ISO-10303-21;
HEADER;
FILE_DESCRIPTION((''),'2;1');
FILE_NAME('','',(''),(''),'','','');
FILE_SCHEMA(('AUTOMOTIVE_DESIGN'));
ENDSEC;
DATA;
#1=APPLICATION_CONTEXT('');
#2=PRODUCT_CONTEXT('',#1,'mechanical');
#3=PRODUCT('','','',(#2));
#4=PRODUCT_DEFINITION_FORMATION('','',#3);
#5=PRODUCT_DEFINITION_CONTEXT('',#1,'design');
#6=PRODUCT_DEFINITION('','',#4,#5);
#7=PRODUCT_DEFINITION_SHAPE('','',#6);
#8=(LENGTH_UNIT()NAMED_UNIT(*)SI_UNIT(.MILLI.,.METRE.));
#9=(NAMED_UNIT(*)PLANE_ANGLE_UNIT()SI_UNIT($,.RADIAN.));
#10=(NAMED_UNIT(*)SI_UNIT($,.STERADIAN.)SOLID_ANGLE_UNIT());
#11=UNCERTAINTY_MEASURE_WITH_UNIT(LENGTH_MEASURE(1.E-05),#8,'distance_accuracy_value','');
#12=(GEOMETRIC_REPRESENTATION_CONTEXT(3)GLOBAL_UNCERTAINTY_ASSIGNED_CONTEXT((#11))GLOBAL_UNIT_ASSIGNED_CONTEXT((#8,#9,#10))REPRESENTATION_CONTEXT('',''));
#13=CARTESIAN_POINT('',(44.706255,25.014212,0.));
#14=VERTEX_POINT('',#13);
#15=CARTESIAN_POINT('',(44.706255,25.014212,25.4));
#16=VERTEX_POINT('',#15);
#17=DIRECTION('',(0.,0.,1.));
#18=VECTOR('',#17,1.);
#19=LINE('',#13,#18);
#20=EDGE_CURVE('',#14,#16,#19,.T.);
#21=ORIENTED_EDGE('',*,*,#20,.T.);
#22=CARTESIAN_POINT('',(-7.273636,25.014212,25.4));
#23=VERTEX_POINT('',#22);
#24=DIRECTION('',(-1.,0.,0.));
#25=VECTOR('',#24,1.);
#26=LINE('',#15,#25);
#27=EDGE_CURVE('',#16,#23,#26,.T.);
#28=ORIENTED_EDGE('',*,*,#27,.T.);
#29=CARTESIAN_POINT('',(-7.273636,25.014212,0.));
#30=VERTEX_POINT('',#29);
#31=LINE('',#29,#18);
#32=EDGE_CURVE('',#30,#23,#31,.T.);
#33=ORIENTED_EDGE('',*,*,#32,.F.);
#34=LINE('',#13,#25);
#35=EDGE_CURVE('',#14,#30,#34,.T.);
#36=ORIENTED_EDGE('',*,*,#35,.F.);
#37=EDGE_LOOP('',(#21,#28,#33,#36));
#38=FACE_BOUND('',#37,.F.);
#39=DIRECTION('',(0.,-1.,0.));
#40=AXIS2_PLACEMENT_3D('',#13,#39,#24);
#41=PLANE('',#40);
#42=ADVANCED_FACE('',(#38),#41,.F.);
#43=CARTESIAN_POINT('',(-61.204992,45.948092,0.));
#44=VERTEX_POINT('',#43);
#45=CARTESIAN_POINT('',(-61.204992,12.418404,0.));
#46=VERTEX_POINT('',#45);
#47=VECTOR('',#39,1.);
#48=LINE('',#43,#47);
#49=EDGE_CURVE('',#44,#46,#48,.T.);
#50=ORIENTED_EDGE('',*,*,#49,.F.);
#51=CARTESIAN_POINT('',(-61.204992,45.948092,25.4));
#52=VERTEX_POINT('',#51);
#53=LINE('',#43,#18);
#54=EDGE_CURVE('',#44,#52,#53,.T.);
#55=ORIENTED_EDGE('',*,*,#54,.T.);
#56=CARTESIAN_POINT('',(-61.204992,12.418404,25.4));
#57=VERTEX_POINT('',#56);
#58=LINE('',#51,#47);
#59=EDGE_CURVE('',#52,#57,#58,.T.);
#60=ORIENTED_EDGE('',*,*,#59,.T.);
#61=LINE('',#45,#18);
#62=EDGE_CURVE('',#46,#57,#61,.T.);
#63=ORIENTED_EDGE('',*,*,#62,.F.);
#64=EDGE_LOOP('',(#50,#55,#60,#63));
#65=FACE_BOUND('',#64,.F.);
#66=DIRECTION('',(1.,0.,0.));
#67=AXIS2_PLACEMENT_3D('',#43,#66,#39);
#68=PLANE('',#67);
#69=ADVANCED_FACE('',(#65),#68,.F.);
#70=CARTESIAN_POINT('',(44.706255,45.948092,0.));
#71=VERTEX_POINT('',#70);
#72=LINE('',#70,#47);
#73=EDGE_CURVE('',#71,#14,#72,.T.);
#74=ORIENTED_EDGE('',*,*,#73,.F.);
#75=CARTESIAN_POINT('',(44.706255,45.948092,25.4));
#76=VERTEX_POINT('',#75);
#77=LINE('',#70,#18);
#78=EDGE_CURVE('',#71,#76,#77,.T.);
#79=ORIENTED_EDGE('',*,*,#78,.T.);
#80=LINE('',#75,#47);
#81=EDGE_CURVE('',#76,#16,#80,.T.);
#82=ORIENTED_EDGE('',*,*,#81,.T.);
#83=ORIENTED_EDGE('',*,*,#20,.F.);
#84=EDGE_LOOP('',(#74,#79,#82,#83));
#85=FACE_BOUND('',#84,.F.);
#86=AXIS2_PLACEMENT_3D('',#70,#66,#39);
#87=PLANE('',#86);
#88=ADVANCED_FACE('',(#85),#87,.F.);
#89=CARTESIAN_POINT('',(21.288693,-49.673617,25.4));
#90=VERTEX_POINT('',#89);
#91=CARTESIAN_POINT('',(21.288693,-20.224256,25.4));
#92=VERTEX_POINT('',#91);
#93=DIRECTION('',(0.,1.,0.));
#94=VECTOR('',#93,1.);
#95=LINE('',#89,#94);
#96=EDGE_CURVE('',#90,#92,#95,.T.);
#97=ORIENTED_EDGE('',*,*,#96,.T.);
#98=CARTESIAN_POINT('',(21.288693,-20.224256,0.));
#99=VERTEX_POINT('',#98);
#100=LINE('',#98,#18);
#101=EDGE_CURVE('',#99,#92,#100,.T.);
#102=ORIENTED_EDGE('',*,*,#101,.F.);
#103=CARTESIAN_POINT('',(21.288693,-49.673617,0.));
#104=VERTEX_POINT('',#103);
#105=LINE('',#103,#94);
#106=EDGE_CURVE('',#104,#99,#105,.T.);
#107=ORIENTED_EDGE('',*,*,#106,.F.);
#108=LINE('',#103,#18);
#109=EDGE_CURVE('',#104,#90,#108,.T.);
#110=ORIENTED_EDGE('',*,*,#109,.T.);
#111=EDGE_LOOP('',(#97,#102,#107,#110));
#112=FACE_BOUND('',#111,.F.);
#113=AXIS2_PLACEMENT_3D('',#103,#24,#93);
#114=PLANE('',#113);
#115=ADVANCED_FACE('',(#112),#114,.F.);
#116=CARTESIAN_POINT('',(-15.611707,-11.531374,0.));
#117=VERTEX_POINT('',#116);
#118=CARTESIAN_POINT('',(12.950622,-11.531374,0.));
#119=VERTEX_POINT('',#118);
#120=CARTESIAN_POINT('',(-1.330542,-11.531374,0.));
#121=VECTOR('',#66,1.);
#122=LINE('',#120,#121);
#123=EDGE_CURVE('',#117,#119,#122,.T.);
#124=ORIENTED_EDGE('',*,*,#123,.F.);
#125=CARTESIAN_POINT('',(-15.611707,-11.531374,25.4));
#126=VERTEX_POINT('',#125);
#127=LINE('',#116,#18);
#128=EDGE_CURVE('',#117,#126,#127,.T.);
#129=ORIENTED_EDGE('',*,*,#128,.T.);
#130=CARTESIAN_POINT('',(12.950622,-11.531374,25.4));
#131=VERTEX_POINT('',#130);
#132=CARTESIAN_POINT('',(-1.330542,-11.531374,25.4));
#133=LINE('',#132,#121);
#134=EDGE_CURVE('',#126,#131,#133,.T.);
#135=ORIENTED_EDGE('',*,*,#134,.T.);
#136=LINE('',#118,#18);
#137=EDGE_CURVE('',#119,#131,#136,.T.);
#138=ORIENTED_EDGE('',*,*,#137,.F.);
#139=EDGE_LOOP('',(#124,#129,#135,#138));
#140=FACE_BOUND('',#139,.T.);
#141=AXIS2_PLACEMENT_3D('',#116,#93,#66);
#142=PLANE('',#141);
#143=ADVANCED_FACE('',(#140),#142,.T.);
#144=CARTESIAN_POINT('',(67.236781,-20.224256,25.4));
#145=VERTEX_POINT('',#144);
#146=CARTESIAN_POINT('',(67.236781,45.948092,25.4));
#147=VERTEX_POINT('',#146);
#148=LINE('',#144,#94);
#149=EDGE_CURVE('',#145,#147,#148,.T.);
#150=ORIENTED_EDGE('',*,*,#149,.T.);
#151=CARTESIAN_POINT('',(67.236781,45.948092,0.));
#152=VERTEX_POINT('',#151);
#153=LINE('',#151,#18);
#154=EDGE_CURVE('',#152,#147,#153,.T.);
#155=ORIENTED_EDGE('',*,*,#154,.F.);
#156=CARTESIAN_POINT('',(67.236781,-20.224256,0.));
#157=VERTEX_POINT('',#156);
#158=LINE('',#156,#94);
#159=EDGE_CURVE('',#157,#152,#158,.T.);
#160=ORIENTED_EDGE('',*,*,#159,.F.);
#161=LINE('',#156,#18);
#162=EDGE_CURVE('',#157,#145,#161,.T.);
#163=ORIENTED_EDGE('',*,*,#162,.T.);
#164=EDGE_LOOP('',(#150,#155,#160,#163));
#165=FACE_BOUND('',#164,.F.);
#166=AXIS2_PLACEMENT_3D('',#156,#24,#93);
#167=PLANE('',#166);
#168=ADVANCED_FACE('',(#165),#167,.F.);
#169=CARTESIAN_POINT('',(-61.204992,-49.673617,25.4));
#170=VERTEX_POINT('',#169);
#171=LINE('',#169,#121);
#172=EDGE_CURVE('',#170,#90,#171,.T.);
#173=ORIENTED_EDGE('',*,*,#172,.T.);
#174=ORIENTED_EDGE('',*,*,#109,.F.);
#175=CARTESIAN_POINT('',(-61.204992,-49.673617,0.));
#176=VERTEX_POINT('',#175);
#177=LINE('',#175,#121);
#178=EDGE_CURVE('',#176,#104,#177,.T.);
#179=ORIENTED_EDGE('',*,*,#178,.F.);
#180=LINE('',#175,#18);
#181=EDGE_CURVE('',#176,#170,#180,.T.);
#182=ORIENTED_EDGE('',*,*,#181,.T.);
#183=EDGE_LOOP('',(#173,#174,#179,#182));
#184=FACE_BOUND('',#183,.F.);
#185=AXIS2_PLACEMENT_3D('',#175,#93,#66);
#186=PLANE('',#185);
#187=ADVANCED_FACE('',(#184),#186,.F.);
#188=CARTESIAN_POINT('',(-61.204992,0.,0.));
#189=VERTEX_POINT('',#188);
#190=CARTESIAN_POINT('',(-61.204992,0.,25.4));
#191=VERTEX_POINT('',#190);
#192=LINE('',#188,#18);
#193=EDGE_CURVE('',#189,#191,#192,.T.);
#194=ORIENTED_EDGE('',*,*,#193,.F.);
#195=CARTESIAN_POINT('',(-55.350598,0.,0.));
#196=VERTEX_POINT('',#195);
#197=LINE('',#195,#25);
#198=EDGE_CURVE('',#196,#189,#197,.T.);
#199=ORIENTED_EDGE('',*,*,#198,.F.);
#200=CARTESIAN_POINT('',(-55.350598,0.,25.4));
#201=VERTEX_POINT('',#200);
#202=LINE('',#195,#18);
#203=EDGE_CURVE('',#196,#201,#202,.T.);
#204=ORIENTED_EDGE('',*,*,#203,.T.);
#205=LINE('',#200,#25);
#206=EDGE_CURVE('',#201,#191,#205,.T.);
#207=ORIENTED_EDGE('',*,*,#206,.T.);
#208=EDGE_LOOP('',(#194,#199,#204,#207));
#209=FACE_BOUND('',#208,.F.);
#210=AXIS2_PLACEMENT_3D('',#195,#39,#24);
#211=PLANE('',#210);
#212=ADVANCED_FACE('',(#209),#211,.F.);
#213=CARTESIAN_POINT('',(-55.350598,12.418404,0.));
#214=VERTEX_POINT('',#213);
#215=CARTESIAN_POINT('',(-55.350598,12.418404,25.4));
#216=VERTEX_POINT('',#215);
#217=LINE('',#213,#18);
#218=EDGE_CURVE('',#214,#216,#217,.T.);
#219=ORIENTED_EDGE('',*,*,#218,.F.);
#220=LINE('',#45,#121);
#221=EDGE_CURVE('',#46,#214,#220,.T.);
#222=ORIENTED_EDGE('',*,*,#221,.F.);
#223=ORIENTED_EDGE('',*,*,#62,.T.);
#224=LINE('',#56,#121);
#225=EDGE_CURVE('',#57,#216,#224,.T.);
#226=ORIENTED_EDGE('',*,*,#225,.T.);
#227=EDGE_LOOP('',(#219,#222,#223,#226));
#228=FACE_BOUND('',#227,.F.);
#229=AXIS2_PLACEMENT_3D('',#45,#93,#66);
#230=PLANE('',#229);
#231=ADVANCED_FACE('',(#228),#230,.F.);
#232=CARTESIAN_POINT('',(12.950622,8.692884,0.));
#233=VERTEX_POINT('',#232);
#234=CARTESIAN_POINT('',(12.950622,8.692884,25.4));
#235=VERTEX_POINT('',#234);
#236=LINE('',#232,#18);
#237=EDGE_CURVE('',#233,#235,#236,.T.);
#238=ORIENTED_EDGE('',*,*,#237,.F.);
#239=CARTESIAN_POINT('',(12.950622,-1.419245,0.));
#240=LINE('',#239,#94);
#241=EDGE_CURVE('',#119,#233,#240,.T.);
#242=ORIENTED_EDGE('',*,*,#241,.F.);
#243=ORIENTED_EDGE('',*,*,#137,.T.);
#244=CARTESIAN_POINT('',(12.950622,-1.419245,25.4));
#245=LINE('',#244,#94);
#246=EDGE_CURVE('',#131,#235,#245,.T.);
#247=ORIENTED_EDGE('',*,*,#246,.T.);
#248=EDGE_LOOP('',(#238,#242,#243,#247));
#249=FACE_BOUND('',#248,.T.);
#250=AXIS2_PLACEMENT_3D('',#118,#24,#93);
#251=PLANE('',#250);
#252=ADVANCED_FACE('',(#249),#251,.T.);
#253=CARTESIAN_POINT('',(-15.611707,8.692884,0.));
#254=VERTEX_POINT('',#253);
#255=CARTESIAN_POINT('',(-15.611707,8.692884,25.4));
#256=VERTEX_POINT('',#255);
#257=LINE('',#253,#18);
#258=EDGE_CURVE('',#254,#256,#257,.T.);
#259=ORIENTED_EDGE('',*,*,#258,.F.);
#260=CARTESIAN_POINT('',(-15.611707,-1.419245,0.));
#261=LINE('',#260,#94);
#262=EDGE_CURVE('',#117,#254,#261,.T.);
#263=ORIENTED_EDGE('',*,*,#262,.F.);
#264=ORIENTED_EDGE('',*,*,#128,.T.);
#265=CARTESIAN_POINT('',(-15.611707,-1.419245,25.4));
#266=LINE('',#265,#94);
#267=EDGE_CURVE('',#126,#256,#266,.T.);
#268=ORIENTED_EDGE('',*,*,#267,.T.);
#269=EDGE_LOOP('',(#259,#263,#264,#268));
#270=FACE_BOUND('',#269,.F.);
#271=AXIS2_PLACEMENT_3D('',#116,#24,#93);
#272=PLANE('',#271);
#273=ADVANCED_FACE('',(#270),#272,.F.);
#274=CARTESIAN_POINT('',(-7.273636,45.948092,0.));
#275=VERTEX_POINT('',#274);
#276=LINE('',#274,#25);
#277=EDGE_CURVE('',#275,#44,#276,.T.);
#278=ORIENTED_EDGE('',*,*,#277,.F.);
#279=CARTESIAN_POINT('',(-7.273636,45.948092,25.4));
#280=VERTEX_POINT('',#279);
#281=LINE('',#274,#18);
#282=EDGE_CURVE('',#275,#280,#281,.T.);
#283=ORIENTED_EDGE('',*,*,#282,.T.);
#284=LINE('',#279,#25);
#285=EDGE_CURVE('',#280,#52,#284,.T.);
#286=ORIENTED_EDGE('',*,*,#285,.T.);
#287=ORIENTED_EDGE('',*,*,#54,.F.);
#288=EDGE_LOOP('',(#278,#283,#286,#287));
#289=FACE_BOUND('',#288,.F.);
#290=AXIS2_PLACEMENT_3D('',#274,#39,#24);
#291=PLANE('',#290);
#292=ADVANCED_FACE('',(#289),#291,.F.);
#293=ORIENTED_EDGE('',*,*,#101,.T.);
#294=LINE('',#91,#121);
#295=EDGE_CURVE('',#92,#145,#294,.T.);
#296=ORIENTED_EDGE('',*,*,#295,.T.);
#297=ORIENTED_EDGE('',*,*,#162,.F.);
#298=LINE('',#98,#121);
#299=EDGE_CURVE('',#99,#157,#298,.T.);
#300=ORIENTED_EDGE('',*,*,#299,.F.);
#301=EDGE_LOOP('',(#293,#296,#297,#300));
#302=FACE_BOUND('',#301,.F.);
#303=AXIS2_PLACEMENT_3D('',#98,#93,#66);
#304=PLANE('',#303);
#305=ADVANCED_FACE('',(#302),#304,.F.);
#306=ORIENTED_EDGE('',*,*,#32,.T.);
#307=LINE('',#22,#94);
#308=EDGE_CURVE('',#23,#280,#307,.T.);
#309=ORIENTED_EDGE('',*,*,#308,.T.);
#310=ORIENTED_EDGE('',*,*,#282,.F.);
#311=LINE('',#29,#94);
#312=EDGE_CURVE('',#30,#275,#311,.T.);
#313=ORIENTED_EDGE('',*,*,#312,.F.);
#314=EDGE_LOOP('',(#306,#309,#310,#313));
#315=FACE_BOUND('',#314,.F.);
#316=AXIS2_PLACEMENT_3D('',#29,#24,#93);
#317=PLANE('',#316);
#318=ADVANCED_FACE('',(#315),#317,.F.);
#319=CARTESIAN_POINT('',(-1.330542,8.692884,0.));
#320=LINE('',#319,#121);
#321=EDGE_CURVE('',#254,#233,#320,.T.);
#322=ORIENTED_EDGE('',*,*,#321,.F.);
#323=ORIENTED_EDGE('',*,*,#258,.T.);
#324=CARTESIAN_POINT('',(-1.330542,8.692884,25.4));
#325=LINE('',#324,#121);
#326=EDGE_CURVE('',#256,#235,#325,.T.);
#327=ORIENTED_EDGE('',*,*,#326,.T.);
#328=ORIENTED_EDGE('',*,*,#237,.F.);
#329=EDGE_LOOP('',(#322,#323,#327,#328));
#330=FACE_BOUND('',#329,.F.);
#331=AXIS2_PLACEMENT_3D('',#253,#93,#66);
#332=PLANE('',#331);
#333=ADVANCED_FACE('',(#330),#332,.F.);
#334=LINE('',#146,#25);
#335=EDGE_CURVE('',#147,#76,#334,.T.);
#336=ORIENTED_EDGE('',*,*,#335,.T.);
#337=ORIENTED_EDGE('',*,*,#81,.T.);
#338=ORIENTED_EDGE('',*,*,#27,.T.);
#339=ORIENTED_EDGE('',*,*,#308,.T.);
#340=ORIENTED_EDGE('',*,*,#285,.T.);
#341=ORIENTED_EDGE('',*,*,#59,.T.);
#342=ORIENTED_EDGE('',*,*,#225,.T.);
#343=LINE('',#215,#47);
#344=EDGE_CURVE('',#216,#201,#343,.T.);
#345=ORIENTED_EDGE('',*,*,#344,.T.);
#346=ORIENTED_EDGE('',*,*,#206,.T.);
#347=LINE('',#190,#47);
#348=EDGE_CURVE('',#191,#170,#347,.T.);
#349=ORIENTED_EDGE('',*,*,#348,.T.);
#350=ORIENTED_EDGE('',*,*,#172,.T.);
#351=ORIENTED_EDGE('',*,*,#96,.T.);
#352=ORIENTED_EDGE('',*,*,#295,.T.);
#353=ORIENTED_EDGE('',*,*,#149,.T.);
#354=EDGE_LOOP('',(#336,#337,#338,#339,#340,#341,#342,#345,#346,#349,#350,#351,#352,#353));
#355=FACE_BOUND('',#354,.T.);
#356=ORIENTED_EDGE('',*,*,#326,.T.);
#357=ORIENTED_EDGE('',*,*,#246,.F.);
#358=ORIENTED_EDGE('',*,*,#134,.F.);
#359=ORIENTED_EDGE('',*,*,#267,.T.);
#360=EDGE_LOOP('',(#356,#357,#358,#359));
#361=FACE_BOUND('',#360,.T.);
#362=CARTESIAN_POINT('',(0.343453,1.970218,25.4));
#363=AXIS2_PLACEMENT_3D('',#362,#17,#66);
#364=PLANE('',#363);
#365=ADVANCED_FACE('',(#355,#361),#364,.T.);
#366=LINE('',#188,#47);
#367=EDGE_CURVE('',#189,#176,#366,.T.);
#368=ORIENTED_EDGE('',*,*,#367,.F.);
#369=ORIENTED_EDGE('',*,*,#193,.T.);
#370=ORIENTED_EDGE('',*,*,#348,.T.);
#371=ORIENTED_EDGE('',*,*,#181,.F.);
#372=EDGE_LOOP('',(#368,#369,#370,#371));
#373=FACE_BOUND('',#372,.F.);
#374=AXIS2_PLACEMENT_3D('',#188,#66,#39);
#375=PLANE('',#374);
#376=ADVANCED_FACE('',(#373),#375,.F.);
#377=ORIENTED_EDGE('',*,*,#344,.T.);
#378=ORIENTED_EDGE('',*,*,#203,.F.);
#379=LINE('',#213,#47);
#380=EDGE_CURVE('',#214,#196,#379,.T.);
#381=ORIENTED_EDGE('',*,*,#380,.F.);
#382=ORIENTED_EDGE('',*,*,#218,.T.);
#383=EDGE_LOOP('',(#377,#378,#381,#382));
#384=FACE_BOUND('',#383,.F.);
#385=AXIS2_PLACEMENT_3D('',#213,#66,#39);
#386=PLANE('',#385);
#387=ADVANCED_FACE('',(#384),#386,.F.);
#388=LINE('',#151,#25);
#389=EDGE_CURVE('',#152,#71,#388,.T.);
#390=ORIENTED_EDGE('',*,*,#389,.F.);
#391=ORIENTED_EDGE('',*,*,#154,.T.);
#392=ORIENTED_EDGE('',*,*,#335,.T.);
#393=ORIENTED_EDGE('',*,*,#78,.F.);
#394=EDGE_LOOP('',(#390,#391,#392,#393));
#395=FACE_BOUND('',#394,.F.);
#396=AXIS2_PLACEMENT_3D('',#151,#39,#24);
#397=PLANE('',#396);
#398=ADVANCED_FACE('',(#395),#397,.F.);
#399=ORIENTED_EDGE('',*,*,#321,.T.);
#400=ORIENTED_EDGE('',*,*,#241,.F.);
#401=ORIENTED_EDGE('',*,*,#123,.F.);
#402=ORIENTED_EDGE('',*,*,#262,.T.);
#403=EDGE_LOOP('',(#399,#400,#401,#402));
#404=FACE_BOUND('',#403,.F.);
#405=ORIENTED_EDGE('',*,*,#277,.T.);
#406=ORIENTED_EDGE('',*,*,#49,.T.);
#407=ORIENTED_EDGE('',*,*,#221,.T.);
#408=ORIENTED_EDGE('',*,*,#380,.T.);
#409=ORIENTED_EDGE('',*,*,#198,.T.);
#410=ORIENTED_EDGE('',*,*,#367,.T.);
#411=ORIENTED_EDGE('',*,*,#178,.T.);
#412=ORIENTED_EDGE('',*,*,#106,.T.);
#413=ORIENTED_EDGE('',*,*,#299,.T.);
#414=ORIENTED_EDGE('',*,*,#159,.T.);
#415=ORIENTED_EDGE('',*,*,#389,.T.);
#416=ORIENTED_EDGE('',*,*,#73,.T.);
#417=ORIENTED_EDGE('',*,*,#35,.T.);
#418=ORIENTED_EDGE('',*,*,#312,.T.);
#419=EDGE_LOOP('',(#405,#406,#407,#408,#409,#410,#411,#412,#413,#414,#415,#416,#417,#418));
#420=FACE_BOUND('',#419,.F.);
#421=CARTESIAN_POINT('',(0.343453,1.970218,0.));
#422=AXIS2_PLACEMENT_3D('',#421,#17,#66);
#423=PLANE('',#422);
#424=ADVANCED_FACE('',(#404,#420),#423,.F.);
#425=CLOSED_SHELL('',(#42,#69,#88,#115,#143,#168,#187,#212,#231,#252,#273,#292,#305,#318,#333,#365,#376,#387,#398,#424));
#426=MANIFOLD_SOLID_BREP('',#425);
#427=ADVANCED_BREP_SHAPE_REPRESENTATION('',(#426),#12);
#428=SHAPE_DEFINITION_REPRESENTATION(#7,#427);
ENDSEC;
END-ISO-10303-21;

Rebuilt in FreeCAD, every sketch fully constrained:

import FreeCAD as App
import Part
import Sketcher


def add_polygon(sketch, points):
    """Adds a closed chain of lines whose ends are joined by coincident constraints."""
    first, n = sketch.GeometryCount, len(points)
    for a, b in zip(points, points[1:] + points[:1]):
        sketch.addGeometry(Part.LineSegment(App.Vector(*a, 0), App.Vector(*b, 0)), False)
    for i in range(n):
        sketch.addConstraint(Sketcher.Constraint("Coincident", first + i, 2, first + (i + 1) % n, 1))

doc = App.newDocument("Part")
params = doc.addObject("Spreadsheet::Sheet", "Params")
for row, (alias, value) in enumerate([
    ("pad1_length", "1 in"),
], start=1):
    params.set(f"A{row}", alias)
    params.set(f"B{row}", "=" + value)
    params.setAlias(f"B{row}", alias)

body = doc.addObject("PartDesign::Body", "Body")

sketch1 = body.newObject("Sketcher::SketchObject", "Sketch")
sketch1.AttachmentSupport = (doc.getObject("XY_Plane"), [""])
sketch1.MapMode = "FlatFace"
add_polygon(sketch1, [(-7, 46), (-61, 46), (-61, 12), (-55, 12), (-55, 0), (-61, 0), (-61, -50), (21, -50), (21, -20), (67, -20), (67, 46), (45, 46), (45, 25), (-7, 25)])
add_polygon(sketch1, [(13, -12), (-16, -12), (-16, 9), (13, 9)])
sketch1.addConstraint(Sketcher.Constraint("Horizontal", 0))
sketch1.addConstraint(Sketcher.Constraint("Vertical", 1))
sketch1.addConstraint(Sketcher.Constraint("Horizontal", 2))
sketch1.addConstraint(Sketcher.Constraint("Vertical", 3))
sketch1.addConstraint(Sketcher.Constraint("Horizontal", 4))
sketch1.addConstraint(Sketcher.Constraint("Vertical", 5))
sketch1.addConstraint(Sketcher.Constraint("Horizontal", 6))
sketch1.addConstraint(Sketcher.Constraint("Vertical", 7))
sketch1.addConstraint(Sketcher.Constraint("Horizontal", 8))
sketch1.addConstraint(Sketcher.Constraint("Vertical", 9))
sketch1.addConstraint(Sketcher.Constraint("Horizontal", 10))
sketch1.addConstraint(Sketcher.Constraint("Vertical", 11))
sketch1.addConstraint(Sketcher.Constraint("Horizontal", 12))
sketch1.addConstraint(Sketcher.Constraint("Vertical", 13))
sketch1.addConstraint(Sketcher.Constraint("Horizontal", 14))
sketch1.addConstraint(Sketcher.Constraint("Vertical", 15))
sketch1.addConstraint(Sketcher.Constraint("Horizontal", 16))
sketch1.addConstraint(Sketcher.Constraint("Vertical", 17))
sketch1.addConstraint(Sketcher.Constraint("PointOnObject", 3, 2, -1))
sketch1.addConstraint(Sketcher.Constraint("Horizontal", 0, 2, 9, 2))
sketch1.addConstraint(Sketcher.Constraint("Vertical", 1, 2, 4, 2))
sketch1.addConstraint(Sketcher.Constraint("DistanceX", 12, 2, 12, 1, 51.979891))
sketch1.addConstraint(Sketcher.Constraint("DistanceX", 14, 2, 14, 1, 28.562329))
sketch1.addConstraint(Sketcher.Constraint("DistanceY", 7, 1, 7, 2, 29.449361))
sketch1.addConstraint(Sketcher.Constraint("DistanceY", 9, 1, 9, 2, 66.172348))
sketch1.addConstraint(Sketcher.Constraint("DistanceY", 11, 2, 11, 1, 20.93388))
sketch1.addConstraint(Sketcher.Constraint("DistanceX", 14, 2, 7, 2, 36.900399))
sketch1.addConstraint(Sketcher.Constraint("DistanceX", 0, 2, 0, 1, 53.931356))
sketch1.addConstraint(Sketcher.Constraint("DistanceX", 2, 1, 2, 2, 5.854394))
sketch1.addConstraint(Sketcher.Constraint("DistanceX", 6, 1, 6, 2, 82.493685))
sketch1.addConstraint(Sketcher.Constraint("DistanceX", 8, 1, 8, 2, 45.948088))
sketch1.addConstraint(Sketcher.Constraint("DistanceY", 1, 2, 1, 1, 33.529688))
sketch1.addConstraint(Sketcher.Constraint("DistanceY", 3, 2, 3, 1, 12.418404))
sketch1.addConstraint(Sketcher.Constraint("DistanceY", 15, 1, 15, 2, 20.224257))
sketch1.addConstraint(Sketcher.Constraint("DistanceX", 0, 2, -1, 1, 61.204992))
sketch1.addConstraint(Sketcher.Constraint("DistanceY", 15, 2, 12, 2, 16.321328))
pad1 = body.newObject("PartDesign::Pad", "Pad")
pad1.Profile = sketch1
pad1.setExpression("Length", "Params.pad1_length")

doc.recompute()
